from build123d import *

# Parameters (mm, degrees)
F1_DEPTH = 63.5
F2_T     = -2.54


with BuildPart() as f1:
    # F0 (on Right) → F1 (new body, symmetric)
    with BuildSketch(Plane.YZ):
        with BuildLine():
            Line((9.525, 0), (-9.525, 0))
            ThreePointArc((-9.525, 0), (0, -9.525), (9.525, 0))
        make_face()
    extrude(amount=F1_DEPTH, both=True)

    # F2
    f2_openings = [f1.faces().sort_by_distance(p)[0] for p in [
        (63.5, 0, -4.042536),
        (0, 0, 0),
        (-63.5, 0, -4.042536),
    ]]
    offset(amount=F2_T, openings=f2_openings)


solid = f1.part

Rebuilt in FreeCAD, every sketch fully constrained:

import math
import FreeCAD as App
import Part
import Sketcher

V = App.Vector
Q = App.Units.Quantity


def faces_at(feature, points):
    """Names of the faces that lie closest to the given points."""
    faces = feature.Shape.Faces
    near = lambda p: min(range(len(faces)), key=lambda i: faces[i].distToShape(Part.Vertex(*p))[0])
    return sorted({f"Face{near(p) + 1}" for p in points})

doc = App.newDocument("Part")
params = doc.addObject("Spreadsheet::Sheet", "Params")
for row, (alias, value) in enumerate([
    ("sketch1_radius", "0.375 in"),
    ("pad1_length", "5 in"),
    ("thickness_wall", "0.1 in"),
], start=1):
    params.set(f"A{row}", alias)
    params.set(f"B{row}", "=" + value)
    params.setAlias(f"B{row}", alias)

body = doc.addObject("PartDesign::Body", "Body")

sketch1 = body.newObject("Sketcher::SketchObject", "Sketch")
sketch1.AttachmentSupport = (doc.getObject("YZ_Plane"), [""])
sketch1.MapMode = "FlatFace"
sketch1.addGeometry([
    Part.LineSegment(V(10, 0, 0), V(-10, 0, 0)),
    Part.ArcOfCircle(Part.Circle(V(0, 0, 0), V(0, 0, 1), 10), math.radians(180), math.radians(360)),
], False)
sketch1.addConstraint([
    Sketcher.Constraint("Coincident", 0, 1, 1, 2),
    Sketcher.Constraint("Coincident", 1, 1, 0, 2),
    Sketcher.Constraint("Horizontal", 0),
    Sketcher.Constraint("Coincident", 1, 3, -1, 1),
    Sketcher.Constraint("PointOnObject", 0, 1, -1),
    Sketcher.Constraint("Radius", 1, Q("0.375 in")),
])
sketch1.setExpression("Constraints[5]", "Params.sketch1_radius")
pad1 = body.newObject("PartDesign::Pad", "Pad")
pad1.Profile = sketch1
pad1.setExpression("Length", "Params.pad1_length")
pad1.Midplane = True
doc.recompute()

thickness = body.newObject("PartDesign::Thickness", "Thickness")
thickness.Base = (pad1, faces_at(pad1, [(63.5, 0, -4.763), (0, 0, 0), (-63.5, 0, -4.763)]))
thickness.setExpression("Value", "Params.thickness_wall")
thickness.Reversed = True
thickness.Join = "Arc"

doc.recompute()
